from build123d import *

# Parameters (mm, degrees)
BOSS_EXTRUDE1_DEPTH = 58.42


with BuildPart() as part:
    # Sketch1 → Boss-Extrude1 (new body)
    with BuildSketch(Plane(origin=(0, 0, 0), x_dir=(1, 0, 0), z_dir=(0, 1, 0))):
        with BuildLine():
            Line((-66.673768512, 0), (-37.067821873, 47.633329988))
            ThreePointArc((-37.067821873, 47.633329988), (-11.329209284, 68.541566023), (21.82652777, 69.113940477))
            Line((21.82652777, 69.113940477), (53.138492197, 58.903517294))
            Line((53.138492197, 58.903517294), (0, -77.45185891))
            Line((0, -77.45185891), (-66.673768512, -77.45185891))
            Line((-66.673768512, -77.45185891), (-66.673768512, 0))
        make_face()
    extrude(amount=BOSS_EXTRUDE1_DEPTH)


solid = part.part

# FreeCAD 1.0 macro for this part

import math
import FreeCAD as App
import Part
import Sketcher
from FreeCAD import Vector
Q = App.Units.Quantity

doc = App.newDocument("Part")
body = doc.addObject("PartDesign::Body", "Body")

sketch1 = doc.addObject("Sketcher::SketchObject", "Sketch")
body.addObject(sketch1)
sketch1.AttachmentSupport = (doc.XZ_Plane, [""])
sketch1.MapMode = "FlatFace"
sketch1.addGeometry(Part.LineSegment(Vector(-37.067822, -47.63333, 0), Vector(-66.673769, 0, 0)), False)
sketch1.addGeometry(Part.LineSegment(Vector(-66.673769, 0, 0), Vector(-66.673769, 77.451859, 0)), False)
sketch1.addGeometry(Part.LineSegment(Vector(-66.673769, 77.451859, 0), Vector(0, 77.451859, 0)), False)
sketch1.addGeometry(Part.LineSegment(Vector(0, 77.451859, 0), Vector(53.138492, -58.903517, 0)), False)
sketch1.addGeometry(Part.LineSegment(Vector(53.138492, -58.903517, 0), Vector(21.826528, -69.11394, 0)), False)
sketch1.addGeometry(Part.ArcOfCircle(Part.Circle(Vector(6.077481, -20.816865, 0), Vector(0, 0, 1), 50.8), math.radians(-148.137459), math.radians(-71.939528)), False)
sketch1.addConstraint(Sketcher.Constraint("Coincident", 0, 2, 1, 1))
sketch1.addConstraint(Sketcher.Constraint("Coincident", 1, 2, 2, 1))
sketch1.addConstraint(Sketcher.Constraint("Coincident", 2, 2, 3, 1))
sketch1.addConstraint(Sketcher.Constraint("Coincident", 3, 2, 4, 1))
sketch1.addConstraint(Sketcher.Constraint("Tangent", 4, 2, 5, 2))
sketch1.addConstraint(Sketcher.Constraint("Tangent", 5, 1, 0, 1))
sketch1.addConstraint(Sketcher.Constraint("Vertical", 1))
sketch1.addConstraint(Sketcher.Constraint("Horizontal", 2))
sketch1.addConstraint(Sketcher.Constraint("PointOnObject", 0, 2, -1))
sketch1.addConstraint(Sketcher.Constraint("PointOnObject", 2, 2, -2))
sketch1.addConstraint(Sketcher.Constraint("Radius", 5, Q("2 in")))
sketch1.addConstraint(Sketcher.Constraint("DistanceX", 2, 1, 2, 2, Q("66.673769 mm")))
sketch1.addConstraint(Sketcher.Constraint("DistanceY", 1, 1, 1, 2, Q("77.451859 mm")))
sketch1.addConstraint(Sketcher.Constraint("DistanceY", 4, 2, 2, 2, Q("146.565799 mm")))
sketch1.addConstraint(Sketcher.Constraint("Distance", 4, Q("32.93466 mm")))
sketch1.addConstraint(Sketcher.Constraint("DistanceX", -1, 1, 5, 3, Q("6.077481 mm")))
sketch1.addConstraint(Sketcher.Constraint("DistanceY", 5, 1, -1, 1, Q("47.63333 mm")))
pad1 = doc.addObject("PartDesign::Pad", "Pad")
body.addObject(pad1)
pad1.Profile = sketch1
pad1.Length = Q("2.3 in")
pad1.Reversed = True

doc.recompute()
